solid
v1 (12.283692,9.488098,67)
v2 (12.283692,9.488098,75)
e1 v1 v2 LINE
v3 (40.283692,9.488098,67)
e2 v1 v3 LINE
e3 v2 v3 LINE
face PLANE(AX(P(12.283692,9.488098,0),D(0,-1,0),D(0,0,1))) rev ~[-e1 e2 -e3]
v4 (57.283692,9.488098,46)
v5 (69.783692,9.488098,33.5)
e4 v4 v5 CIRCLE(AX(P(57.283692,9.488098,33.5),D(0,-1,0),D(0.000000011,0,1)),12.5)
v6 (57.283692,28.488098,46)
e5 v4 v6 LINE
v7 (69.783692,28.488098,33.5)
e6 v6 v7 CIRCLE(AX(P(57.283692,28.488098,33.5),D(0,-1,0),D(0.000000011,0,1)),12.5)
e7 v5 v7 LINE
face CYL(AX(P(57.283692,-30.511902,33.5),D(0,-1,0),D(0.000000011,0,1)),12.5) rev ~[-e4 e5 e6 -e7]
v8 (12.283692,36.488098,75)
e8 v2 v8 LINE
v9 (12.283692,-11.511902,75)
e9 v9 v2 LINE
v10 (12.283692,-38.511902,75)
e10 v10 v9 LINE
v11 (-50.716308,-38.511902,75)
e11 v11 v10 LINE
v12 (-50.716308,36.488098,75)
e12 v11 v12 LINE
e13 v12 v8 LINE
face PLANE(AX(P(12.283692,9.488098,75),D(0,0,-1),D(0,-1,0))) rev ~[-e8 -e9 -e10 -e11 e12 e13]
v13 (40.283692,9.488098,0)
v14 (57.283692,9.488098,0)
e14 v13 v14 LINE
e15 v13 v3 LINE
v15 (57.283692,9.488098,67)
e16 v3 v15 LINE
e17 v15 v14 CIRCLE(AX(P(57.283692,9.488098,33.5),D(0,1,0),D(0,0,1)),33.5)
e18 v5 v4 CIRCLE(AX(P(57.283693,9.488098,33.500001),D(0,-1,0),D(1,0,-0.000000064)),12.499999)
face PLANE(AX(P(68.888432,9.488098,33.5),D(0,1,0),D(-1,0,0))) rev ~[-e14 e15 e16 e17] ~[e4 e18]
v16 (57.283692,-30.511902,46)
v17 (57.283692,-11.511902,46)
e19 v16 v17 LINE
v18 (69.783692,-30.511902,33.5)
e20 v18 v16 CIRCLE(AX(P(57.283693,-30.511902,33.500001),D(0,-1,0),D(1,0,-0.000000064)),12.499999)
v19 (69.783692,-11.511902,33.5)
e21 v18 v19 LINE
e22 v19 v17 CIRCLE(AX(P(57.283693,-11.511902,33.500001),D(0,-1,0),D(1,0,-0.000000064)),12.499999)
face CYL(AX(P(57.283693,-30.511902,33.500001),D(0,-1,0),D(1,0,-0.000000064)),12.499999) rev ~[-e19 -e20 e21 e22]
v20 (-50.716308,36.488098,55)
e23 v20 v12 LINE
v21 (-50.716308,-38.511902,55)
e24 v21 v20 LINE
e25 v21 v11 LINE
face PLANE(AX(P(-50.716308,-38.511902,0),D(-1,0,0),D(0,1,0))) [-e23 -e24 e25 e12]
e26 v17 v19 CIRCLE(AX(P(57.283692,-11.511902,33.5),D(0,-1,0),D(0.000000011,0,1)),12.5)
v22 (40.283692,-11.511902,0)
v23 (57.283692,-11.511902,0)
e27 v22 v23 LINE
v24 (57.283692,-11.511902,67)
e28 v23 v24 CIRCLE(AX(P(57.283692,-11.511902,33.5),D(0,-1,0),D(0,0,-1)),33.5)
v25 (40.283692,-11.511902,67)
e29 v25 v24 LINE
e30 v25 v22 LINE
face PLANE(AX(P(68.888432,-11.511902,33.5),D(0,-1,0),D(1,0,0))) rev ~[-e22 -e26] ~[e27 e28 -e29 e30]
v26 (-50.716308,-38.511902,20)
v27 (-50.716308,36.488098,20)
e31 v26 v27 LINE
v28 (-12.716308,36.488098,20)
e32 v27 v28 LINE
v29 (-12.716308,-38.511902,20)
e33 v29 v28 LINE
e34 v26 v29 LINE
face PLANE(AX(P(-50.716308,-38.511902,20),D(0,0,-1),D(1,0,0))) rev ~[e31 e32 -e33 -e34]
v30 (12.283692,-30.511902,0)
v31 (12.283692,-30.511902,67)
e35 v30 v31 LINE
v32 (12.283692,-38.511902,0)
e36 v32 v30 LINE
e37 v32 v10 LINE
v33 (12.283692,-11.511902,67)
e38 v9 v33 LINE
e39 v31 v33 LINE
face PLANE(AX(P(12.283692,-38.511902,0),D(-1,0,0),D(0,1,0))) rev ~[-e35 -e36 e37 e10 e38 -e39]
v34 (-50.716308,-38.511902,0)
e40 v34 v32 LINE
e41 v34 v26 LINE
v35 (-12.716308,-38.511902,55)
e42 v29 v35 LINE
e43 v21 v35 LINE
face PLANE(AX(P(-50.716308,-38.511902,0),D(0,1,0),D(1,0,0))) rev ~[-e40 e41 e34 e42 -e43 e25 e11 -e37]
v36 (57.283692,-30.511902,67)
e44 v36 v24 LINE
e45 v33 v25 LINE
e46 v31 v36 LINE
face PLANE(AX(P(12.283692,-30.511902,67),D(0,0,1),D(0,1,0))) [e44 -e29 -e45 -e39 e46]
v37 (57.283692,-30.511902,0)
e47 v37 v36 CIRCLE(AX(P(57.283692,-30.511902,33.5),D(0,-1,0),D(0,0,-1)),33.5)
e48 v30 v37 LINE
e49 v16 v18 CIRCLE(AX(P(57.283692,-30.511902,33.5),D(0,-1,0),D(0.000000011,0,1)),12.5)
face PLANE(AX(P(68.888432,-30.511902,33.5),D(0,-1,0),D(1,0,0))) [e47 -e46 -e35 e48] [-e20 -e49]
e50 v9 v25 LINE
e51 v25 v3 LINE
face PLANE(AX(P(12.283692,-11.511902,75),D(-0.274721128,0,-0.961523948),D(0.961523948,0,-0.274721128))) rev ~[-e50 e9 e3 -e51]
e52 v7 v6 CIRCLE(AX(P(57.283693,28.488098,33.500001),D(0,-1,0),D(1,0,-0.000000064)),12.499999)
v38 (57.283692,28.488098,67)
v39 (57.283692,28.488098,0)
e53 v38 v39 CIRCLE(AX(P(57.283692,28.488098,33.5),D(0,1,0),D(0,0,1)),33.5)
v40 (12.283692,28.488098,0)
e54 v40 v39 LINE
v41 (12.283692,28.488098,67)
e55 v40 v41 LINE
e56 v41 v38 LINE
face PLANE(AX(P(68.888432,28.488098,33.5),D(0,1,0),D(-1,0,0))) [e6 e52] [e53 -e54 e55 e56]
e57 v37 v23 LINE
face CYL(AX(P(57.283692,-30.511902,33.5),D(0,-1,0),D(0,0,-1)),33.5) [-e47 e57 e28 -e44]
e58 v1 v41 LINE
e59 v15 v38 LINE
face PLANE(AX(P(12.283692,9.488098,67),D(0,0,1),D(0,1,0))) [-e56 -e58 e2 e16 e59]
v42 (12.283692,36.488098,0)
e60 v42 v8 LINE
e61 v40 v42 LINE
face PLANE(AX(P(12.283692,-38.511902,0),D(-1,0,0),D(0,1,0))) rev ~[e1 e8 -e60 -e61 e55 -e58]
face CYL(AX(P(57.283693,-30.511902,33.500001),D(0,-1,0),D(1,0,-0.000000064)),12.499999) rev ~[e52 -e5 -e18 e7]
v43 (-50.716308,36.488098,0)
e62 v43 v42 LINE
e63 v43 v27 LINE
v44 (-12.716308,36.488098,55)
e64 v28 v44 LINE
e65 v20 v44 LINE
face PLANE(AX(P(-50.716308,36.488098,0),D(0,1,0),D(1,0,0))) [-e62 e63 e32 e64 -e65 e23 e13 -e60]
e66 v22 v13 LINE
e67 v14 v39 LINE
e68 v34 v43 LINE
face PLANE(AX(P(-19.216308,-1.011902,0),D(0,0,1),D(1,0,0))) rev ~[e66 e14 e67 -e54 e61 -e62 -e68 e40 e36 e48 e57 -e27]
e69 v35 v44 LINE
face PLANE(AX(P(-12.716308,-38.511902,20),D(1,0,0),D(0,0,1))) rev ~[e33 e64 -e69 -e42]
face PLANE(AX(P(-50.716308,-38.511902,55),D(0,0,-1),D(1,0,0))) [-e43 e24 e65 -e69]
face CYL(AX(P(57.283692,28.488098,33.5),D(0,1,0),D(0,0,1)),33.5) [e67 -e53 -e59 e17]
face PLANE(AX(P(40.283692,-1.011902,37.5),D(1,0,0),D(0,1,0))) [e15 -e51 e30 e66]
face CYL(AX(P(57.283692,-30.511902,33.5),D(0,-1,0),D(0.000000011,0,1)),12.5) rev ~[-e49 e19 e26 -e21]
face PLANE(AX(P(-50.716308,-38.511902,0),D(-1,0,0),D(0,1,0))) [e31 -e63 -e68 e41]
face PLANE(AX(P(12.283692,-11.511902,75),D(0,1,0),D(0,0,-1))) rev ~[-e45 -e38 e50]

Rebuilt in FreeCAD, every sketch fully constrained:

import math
import FreeCAD as App
import Part
import Sketcher

V = App.Vector
Q = App.Units.Quantity


def add_polygon(sketch, points):
    """Adds a closed chain of lines whose ends are joined by coincident constraints."""
    first, n = sketch.GeometryCount, len(points)
    for a, b in zip(points, points[1:] + points[:1]):
        sketch.addGeometry(Part.LineSegment(App.Vector(*a, 0), App.Vector(*b, 0)), False)
    for i in range(n):
        sketch.addConstraint(Sketcher.Constraint("Coincident", first + i, 2, first + (i + 1) % n, 1))

doc = App.newDocument("Part")
body = doc.addObject("PartDesign::Body", "Body")

# Sketch on XY plane
sketch1 = doc.addObject("Sketcher::SketchObject", "Sketch")
body.addObject(sketch1)
sketch1.AttachmentSupport = (doc.XY_Plane, [""])
sketch1.MapMode = "FlatFace"
add_polygon(sketch1, [(-51, 36), (-51, -39), (12, -39), (12, 36)])  # lines 0-3
sketch1.addConstraint(Sketcher.Constraint("Vertical", 0))
sketch1.addConstraint(Sketcher.Constraint("Horizontal", 1))
sketch1.addConstraint(Sketcher.Constraint("Vertical", 2))
sketch1.addConstraint(Sketcher.Constraint("Horizontal", 3))
sketch1.addConstraint(Sketcher.Constraint("DistanceX", 1, 1, 1, 2, Q("63 mm")))
sketch1.addConstraint(Sketcher.Constraint("DistanceY", 0, 2, 0, 1, Q("75 mm")))
sketch1.addConstraint(Sketcher.Constraint("DistanceX", 0, 2, -1, 1, Q("50.716308 mm")))
sketch1.addConstraint(Sketcher.Constraint("DistanceY", 0, 2, -1, 1, Q("38.511902 mm")))
pad1 = doc.addObject("PartDesign::Pad", "Pad")
body.addObject(pad1)
pad1.Profile = sketch1
pad1.Length = 75

# Sketch on XZ plane
sketch2 = doc.addObject("Sketcher::SketchObject", "Sketch001")
body.addObject(sketch2)
sketch2.AttachmentSupport = (doc.XZ_Plane, [""])
sketch2.MapMode = "FlatFace"
sketch2.AttachmentOffset = App.Placement(V(0, 0, 38.511902), App.Rotation())
add_polygon(sketch2, [(-51, 55), (-51, 20), (-13, 20), (-13, 55)])  # lines 0-3
sketch2.addConstraint(Sketcher.Constraint("Vertical", 0))
sketch2.addConstraint(Sketcher.Constraint("Horizontal", 1))
sketch2.addConstraint(Sketcher.Constraint("Vertical", 2))
sketch2.addConstraint(Sketcher.Constraint("Horizontal", 3))
sketch2.addConstraint(Sketcher.Constraint("DistanceX", 1, 1, 1, 2, Q("38 mm")))
sketch2.addConstraint(Sketcher.Constraint("DistanceY", 0, 2, 0, 1, Q("35 mm")))
sketch2.addConstraint(Sketcher.Constraint("DistanceY", -1, 1, 0, 2, Q("20 mm")))
sketch2.addConstraint(Sketcher.Constraint("DistanceX", 0, 2, -1, 1, Q("50.716308 mm")))
pocket1 = doc.addObject("PartDesign::Pocket", "Pocket")
body.addObject(pocket1)
pocket1.Profile = sketch2
pocket1.Length = 75

# Sketch on YZ plane
sketch3 = doc.addObject("Sketcher::SketchObject", "Sketch002")
body.addObject(sketch3)
sketch3.AttachmentSupport = (doc.YZ_Plane, [""])
sketch3.MapMode = "FlatFace"
sketch3.AttachmentOffset = App.Placement(V(0, 0, 12.283692), App.Rotation())
add_polygon(sketch3, [(-31, 67), (-31, 0), (-12, 0), (-12, 67)])  # lines 0-3
add_polygon(sketch3, [(9, 67), (9, 0), (28, 0), (28, 67)])  # lines 4-7
sketch3.addConstraint(Sketcher.Constraint("Vertical", 0))
sketch3.addConstraint(Sketcher.Constraint("Horizontal", 1))
sketch3.addConstraint(Sketcher.Constraint("Vertical", 2))
sketch3.addConstraint(Sketcher.Constraint("Horizontal", 3))
sketch3.addConstraint(Sketcher.Constraint("Vertical", 4))
sketch3.addConstraint(Sketcher.Constraint("Horizontal", 5))
sketch3.addConstraint(Sketcher.Constraint("Vertical", 6))
sketch3.addConstraint(Sketcher.Constraint("Horizontal", 7))
sketch3.addConstraint(Sketcher.Constraint("PointOnObject", 0, 2, -1))
sketch3.addConstraint(Sketcher.Constraint("PointOnObject", 4, 2, -1))
sketch3.addConstraint(Sketcher.Constraint("Horizontal", 3, 2, 6, 2))
sketch3.addConstraint(Sketcher.Constraint("Equal", 3, 5))
sketch3.addConstraint(Sketcher.Constraint("DistanceX", 1, 1, 1, 2, Q("19 mm")))
sketch3.addConstraint(Sketcher.Constraint("DistanceY", 0, 2, 0, 1, Q("67 mm")))
sketch3.addConstraint(Sketcher.Constraint("DistanceX", 1, 2, 4, 2, Q("21 mm")))
sketch3.addConstraint(Sketcher.Constraint("DistanceX", 0, 2, -1, 1, Q("30.511902 mm")))
pad2 = doc.addObject("PartDesign::Pad", "Pad001")
body.addObject(pad2)
pad2.Profile = sketch3
pad2.Length = 45

# Sketch on YZ plane
sketch4 = doc.addObject("Sketcher::SketchObject", "Sketch003")
body.addObject(sketch4)
sketch4.AttachmentSupport = (doc.YZ_Plane, [""])
sketch4.MapMode = "FlatFace"
sketch4.AttachmentOffset = App.Placement(V(0, 0, 12.283692), App.Rotation())
add_polygon(sketch4, [(-12, 75), (-12, 0), (9, 0), (9, 75)])  # lines 0-3
sketch4.addConstraint(Sketcher.Constraint("Vertical", 0))
sketch4.addConstraint(Sketcher.Constraint("Horizontal", 1))
sketch4.addConstraint(Sketcher.Constraint("Vertical", 2))
sketch4.addConstraint(Sketcher.Constraint("Horizontal", 3))
sketch4.addConstraint(Sketcher.Constraint("PointOnObject", 0, 2, -1))
sketch4.addConstraint(Sketcher.Constraint("DistanceX", 1, 1, 1, 2, Q("21 mm")))
sketch4.addConstraint(Sketcher.Constraint("DistanceY", 0, 2, 0, 1, Q("75 mm")))
sketch4.addConstraint(Sketcher.Constraint("DistanceX", 0, 2, -1, 1, Q("11.511902 mm")))
pad3 = doc.addObject("PartDesign::Pad", "Pad002")
body.addObject(pad3)
pad3.Profile = sketch4
pad3.Length = 28

# Sketch on XZ plane
sketch5 = doc.addObject("Sketcher::SketchObject", "Sketch004")
body.addObject(sketch5)
sketch5.AttachmentSupport = (doc.XZ_Plane, [""])
sketch5.MapMode = "FlatFace"
sketch5.AttachmentOffset = App.Placement(V(0, 0, 11.511902), App.Rotation())
add_polygon(sketch5, [(40, 75), (12, 75), (40, 67)])  # lines 0-2
sketch5.addConstraint(Sketcher.Constraint("Horizontal", 0))
sketch5.addConstraint(Sketcher.Constraint("Vertical", 2))
sketch5.addConstraint(Sketcher.Constraint("DistanceX", 0, 2, 0, 1, Q("28 mm")))
sketch5.addConstraint(Sketcher.Constraint("DistanceY", 2, 1, 2, 2, Q("8 mm")))
sketch5.addConstraint(Sketcher.Constraint("DistanceY", -1, 1, 0, 2, Q("75 mm")))
sketch5.addConstraint(Sketcher.Constraint("DistanceX", -1, 1, 0, 2, Q("12.283692 mm")))
pocket2 = doc.addObject("PartDesign::Pocket", "Pocket001")
body.addObject(pocket2)
pocket2.Profile = sketch5
pocket2.Length = 25

# Sketch on XZ plane
sketch6 = doc.addObject("Sketcher::SketchObject", "Sketch005")
body.addObject(sketch6)
sketch6.AttachmentSupport = (doc.XZ_Plane, [""])
sketch6.MapMode = "FlatFace"
sketch6.AttachmentOffset = App.Placement(V(0, 0, 30.511902), App.Rotation())
sketch6.addGeometry(Part.LineSegment(V(57, 67, 0), V(57, 0, 0)), False)
sketch6.addGeometry(Part.ArcOfCircle(Part.Circle(V(57, 34, 0), V(0, 0, 1), 34), math.radians(-90), math.radians(90)), False)
sketch6.addConstraint(Sketcher.Constraint("Coincident", 0, 1, 1, 2))
sketch6.addConstraint(Sketcher.Constraint("Coincident", 1, 1, 0, 2))
sketch6.addConstraint(Sketcher.Constraint("Vertical", 0))
sketch6.addConstraint(Sketcher.Constraint("PointOnObject", 1, 1, -1))
sketch6.addConstraint(Sketcher.Constraint("Vertical", 1, 3, 0, 1))
sketch6.addConstraint(Sketcher.Constraint("Radius", 1, Q("33.5 mm")))
sketch6.addConstraint(Sketcher.Constraint("DistanceX", -1, 1, 1, 3, Q("57.283692 mm")))
pad4 = doc.addObject("PartDesign::Pad", "Pad003")
body.addObject(pad4)
pad4.Profile = sketch6
pad4.Length = 19
pad4.Reversed = True

# Sketch on XZ plane
sketch7 = doc.addObject("Sketcher::SketchObject", "Sketch006")
body.addObject(sketch7)
sketch7.AttachmentSupport = (doc.XZ_Plane, [""])
sketch7.MapMode = "FlatFace"
sketch7.AttachmentOffset = App.Placement(V(0, 0, -28.488098), App.Rotation())
sketch7.addGeometry(Part.LineSegment(V(57, 0, 0), V(57, 67, 0)), False)
sketch7.addGeometry(Part.ArcOfCircle(Part.Circle(V(57, 34, 0), V(0, 0, 1), 34), math.radians(-90), math.radians(90)), False)
sketch7.addConstraint(Sketcher.Constraint("Coincident", 0, 1, 1, 1))
sketch7.addConstraint(Sketcher.Constraint("Coincident", 1, 2, 0, 2))
sketch7.addConstraint(Sketcher.Constraint("Vertical", 0))
sketch7.addConstraint(Sketcher.Constraint("PointOnObject", 0, 1, -1))
sketch7.addConstraint(Sketcher.Constraint("Vertical", 1, 3, 0, 1))
sketch7.addConstraint(Sketcher.Constraint("Radius", 1, Q("33.5 mm")))
sketch7.addConstraint(Sketcher.Constraint("DistanceX", -1, 1, 1, 3, Q("57.283692 mm")))
pad5 = doc.addObject("PartDesign::Pad", "Pad004")
body.addObject(pad5)
pad5.Profile = sketch7
pad5.Length = 19

# Sketch on XZ plane
sketch8 = doc.addObject("Sketcher::SketchObject", "Sketch007")
body.addObject(sketch8)
sketch8.AttachmentSupport = (doc.XZ_Plane, [""])
sketch8.MapMode = "FlatFace"
sketch8.AttachmentOffset = App.Placement(V(0, 0, 30.511902), App.Rotation())
sketch8.addGeometry(Part.ArcOfCircle(Part.Circle(V(57, 34, 0), V(0, 0, 1), 12), math.radians(0), math.radians(90)), False)
sketch8.addGeometry(Part.ArcOfCircle(Part.Circle(V(57, 33, 0), V(0, 0, 1), 13), math.radians(90), math.radians(360)), False)
sketch8.addConstraint(Sketcher.Constraint("Tangent", 0, 1, 1, 2))
sketch8.addConstraint(Sketcher.Constraint("Coincident", 1, 1, 0, 2))
sketch8.addConstraint(Sketcher.Constraint("Horizontal", 1, 3, 0, 1))
sketch8.addConstraint(Sketcher.Constraint("Vertical", 0, 3, 1, 1))
sketch8.addConstraint(Sketcher.Constraint("Radius", 0, Q("12.499999 mm")))
sketch8.addConstraint(Sketcher.Constraint("DistanceY", -1, 1, 1, 1, Q("46 mm")))
sketch8.addConstraint(Sketcher.Constraint("DistanceX", -1, 1, 1, 3, Q("57.283692 mm")))
pocket3 = doc.addObject("PartDesign::Pocket", "Pocket002")
body.addObject(pocket3)
pocket3.Profile = sketch8
pocket3.Length = 100

doc.recompute()
